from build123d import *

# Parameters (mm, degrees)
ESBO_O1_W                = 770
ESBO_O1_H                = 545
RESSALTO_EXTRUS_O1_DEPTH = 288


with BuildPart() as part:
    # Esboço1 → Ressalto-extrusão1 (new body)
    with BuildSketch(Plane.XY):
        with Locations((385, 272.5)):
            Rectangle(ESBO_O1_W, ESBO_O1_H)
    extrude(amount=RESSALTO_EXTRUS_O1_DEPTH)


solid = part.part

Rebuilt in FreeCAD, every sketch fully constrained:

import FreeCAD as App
import Part
import Sketcher

V = App.Vector


def add_polygon(sketch, points):
    """Adds a closed chain of lines whose ends are joined by coincident constraints."""
    first, n = sketch.GeometryCount, len(points)
    for a, b in zip(points, points[1:] + points[:1]):
        sketch.addGeometry(Part.LineSegment(App.Vector(*a, 0), App.Vector(*b, 0)), False)
    for i in range(n):
        sketch.addConstraint(Sketcher.Constraint("Coincident", first + i, 2, first + (i + 1) % n, 1))

doc = App.newDocument("Part")
params = doc.addObject("Spreadsheet::Sheet", "Params")
for row, (alias, value) in enumerate([
    ("sketch1_width", "770 mm"),
    ("sketch1_height", "545 mm"),
    ("pad1_length", "288 mm"),
], start=1):
    params.set(f"A{row}", alias)
    params.set(f"B{row}", "=" + value)
    params.setAlias(f"B{row}", alias)

body = doc.addObject("PartDesign::Body", "Body")

sketch1 = doc.addObject("Sketcher::SketchObject", "Sketch")
body.addObject(sketch1)
sketch1.AttachmentSupport = (doc.XY_Plane, [""])
sketch1.MapMode = "FlatFace"
add_polygon(sketch1, [(0, 545), (0, 0), (770, 0), (770, 545)])
sketch1.addConstraint(Sketcher.Constraint("Vertical", 0))
sketch1.addConstraint(Sketcher.Constraint("Horizontal", 1))
sketch1.addConstraint(Sketcher.Constraint("Vertical", 2))
sketch1.addConstraint(Sketcher.Constraint("Horizontal", 3))
sketch1.addConstraint(Sketcher.Constraint("Coincident", 0, 2, -1, 1))
sketch1.addConstraint(Sketcher.Constraint("DistanceX", 1, 1, 1, 2, 770.0))
sketch1.addConstraint(Sketcher.Constraint("DistanceY", 0, 2, 0, 1, 545.0))
sketch1.setExpression("Constraints[9]", "Params.sketch1_width")
sketch1.setExpression("Constraints[10]", "Params.sketch1_height")
pad1 = doc.addObject("PartDesign::Pad", "Pad")
body.addObject(pad1)
pad1.Profile = sketch1
pad1.setExpression("Length", "Params.pad1_length")

doc.recompute()
